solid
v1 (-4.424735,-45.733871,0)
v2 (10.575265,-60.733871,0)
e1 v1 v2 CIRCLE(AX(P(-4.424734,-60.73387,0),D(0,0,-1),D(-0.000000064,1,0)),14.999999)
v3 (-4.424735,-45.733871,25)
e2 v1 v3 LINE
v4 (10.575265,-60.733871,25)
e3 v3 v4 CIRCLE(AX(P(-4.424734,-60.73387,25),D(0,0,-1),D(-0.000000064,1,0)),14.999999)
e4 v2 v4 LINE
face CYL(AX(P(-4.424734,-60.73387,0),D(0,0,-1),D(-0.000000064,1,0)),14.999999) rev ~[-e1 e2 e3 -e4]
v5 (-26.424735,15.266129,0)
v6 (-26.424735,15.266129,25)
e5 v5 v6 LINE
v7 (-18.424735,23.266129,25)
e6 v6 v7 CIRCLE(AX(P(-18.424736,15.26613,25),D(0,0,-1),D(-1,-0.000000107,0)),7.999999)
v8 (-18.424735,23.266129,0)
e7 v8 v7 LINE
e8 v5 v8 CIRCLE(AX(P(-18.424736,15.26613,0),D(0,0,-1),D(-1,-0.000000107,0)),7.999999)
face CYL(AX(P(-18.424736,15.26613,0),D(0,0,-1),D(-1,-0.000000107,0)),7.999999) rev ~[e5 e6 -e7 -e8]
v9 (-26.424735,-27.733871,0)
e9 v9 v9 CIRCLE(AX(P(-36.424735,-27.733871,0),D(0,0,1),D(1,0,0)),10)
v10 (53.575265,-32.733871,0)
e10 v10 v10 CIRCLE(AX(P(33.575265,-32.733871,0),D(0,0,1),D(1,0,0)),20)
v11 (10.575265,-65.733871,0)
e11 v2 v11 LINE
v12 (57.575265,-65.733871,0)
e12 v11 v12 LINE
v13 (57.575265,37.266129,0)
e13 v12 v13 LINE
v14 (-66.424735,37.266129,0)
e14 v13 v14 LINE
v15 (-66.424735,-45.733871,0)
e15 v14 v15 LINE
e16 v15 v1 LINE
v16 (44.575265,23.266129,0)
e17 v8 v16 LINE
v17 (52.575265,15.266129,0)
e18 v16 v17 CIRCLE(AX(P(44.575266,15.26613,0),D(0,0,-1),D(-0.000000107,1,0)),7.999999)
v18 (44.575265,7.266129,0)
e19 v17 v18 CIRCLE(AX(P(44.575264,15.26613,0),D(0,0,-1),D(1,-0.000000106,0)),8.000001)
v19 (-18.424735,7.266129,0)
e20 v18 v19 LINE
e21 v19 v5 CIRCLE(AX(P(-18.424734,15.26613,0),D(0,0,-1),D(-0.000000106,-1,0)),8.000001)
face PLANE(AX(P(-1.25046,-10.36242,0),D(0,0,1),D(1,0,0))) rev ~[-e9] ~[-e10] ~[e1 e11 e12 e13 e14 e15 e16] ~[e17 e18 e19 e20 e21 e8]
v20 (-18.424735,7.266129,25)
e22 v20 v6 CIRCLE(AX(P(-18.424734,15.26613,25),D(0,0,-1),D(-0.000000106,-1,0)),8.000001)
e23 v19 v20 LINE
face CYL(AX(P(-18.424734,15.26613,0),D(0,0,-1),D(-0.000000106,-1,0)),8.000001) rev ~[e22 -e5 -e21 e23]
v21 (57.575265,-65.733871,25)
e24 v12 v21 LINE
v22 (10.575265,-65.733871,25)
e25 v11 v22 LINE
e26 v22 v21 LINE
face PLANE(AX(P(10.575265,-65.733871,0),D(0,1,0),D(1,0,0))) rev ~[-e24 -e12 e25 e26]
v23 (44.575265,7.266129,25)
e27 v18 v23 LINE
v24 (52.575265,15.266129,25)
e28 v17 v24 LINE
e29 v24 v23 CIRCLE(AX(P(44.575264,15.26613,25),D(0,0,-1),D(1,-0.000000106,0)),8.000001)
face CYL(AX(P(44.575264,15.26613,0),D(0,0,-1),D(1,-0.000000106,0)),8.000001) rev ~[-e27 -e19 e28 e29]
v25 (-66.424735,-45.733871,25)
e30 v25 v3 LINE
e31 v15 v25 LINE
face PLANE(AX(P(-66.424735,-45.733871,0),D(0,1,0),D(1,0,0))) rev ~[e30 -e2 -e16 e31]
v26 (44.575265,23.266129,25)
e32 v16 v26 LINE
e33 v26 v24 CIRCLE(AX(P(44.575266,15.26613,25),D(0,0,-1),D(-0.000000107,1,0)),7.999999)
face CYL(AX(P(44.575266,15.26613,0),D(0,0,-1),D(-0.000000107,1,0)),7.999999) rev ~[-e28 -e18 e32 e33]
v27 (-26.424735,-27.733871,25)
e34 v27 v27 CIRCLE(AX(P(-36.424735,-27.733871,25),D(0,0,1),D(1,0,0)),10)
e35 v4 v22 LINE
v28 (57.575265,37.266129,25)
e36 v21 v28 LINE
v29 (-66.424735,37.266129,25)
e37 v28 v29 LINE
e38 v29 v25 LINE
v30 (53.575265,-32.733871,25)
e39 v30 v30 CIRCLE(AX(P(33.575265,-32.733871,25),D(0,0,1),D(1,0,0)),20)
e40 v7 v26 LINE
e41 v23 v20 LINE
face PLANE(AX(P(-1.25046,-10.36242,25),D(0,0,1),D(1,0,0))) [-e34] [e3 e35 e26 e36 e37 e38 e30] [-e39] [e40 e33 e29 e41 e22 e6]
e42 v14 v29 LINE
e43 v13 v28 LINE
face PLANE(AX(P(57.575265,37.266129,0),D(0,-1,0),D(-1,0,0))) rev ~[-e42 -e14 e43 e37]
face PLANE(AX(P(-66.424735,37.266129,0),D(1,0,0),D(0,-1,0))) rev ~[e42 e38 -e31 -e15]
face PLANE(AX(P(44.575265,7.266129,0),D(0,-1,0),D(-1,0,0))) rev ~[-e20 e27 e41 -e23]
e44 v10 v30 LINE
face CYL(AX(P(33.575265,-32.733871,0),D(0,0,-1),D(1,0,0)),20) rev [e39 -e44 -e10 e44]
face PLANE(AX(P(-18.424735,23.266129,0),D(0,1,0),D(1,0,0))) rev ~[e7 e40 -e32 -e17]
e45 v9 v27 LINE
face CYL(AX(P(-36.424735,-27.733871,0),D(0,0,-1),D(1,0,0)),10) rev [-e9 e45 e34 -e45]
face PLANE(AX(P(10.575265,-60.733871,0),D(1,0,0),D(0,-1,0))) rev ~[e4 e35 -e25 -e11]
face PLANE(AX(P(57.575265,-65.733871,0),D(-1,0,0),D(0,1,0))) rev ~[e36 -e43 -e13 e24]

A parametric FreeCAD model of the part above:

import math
import FreeCAD as App
import Part
import Sketcher
Q = App.Units.Quantity

doc = App.newDocument("Part")
body = doc.addObject("PartDesign::Body", "Body")

# Sketch on XY plane
sketch1 = doc.addObject("Sketcher::SketchObject", "Sketch")
body.addObject(sketch1)
sketch1.AttachmentSupport = (doc.XY_Plane, [""])
sketch1.MapMode = "FlatFace"
sketch1.addGeometry([
    Part.LineSegment(App.Vector(57.6, 37.3, 0), App.Vector(-66.4, 37.3, 0)),  # 0
    Part.LineSegment(App.Vector(-66.4, 37.3, 0), App.Vector(-66.4, -45.7, 0)),  # 1
    Part.LineSegment(App.Vector(-66.4, -45.7, 0), App.Vector(-4.4, -45.7, 0)),  # 2
    Part.ArcOfCircle(Part.Circle(App.Vector(-4.4, -60.7, 0), App.Vector(0, 0, 1), 15), math.radians(0), math.radians(90)),  # 3
    Part.LineSegment(App.Vector(10.6, -60.7, 0), App.Vector(10.6, -65.7, 0)),  # 4
    Part.LineSegment(App.Vector(10.6, -65.7, 0), App.Vector(57.6, -65.7, 0)),  # 5
    Part.LineSegment(App.Vector(57.6, -65.7, 0), App.Vector(57.6, 37.3, 0)),  # 6
    Part.Circle(App.Vector(-36.4, -27.7, 0), App.Vector(0, 0, 1), 10),  # 7
    Part.Circle(App.Vector(33.6, -32.7, 0), App.Vector(0, 0, 1), 20),  # 8
    Part.ArcOfCircle(Part.Circle(App.Vector(-18.4, 15.3, 0), App.Vector(0, 0, 1), 8), math.radians(90), math.radians(180)),  # 9
    Part.LineSegment(App.Vector(-18.4, 23.3, 0), App.Vector(44.6, 23.3, 0)),  # 10
    Part.ArcOfCircle(Part.Circle(App.Vector(44.6, 15.3, 0), App.Vector(0, 0, 1), 8), math.radians(0), math.radians(90)),  # 11
    Part.ArcOfCircle(Part.Circle(App.Vector(44.6, 15.3, 0), App.Vector(0, 0, 1), 8), math.radians(-90), math.radians(0)),  # 12
    Part.LineSegment(App.Vector(44.6, 7.3, 0), App.Vector(-18.4, 7.3, 0)),  # 13
    Part.ArcOfCircle(Part.Circle(App.Vector(-18.4, 15.3, 0), App.Vector(0, 0, 1), 8), math.radians(-180), math.radians(-90)),  # 14
], False)
sketch1.addConstraint([
    Sketcher.Constraint("Coincident", 0, 2, 1, 1),
    Sketcher.Constraint("Coincident", 1, 2, 2, 1),
    Sketcher.Constraint("Tangent", 2, 2, 3, 2),
    Sketcher.Constraint("Tangent", 3, 1, 4, 1),
    Sketcher.Constraint("Coincident", 4, 2, 5, 1),
    Sketcher.Constraint("Coincident", 5, 2, 6, 1),
    Sketcher.Constraint("Coincident", 6, 2, 0, 1),
    Sketcher.Constraint("Tangent", 9, 1, 10, 1),
    Sketcher.Constraint("Tangent", 10, 2, 11, 2),
    Sketcher.Constraint("Tangent", 11, 1, 12, 2),
    Sketcher.Constraint("Tangent", 12, 1, 13, 1),
    Sketcher.Constraint("Tangent", 13, 2, 14, 2),
    Sketcher.Constraint("Tangent", 14, 1, 9, 2),
    Sketcher.Constraint("Horizontal", 0),
    Sketcher.Constraint("Vertical", 1),
    Sketcher.Constraint("Horizontal", 2),
    Sketcher.Constraint("Vertical", 4),
    Sketcher.Constraint("Horizontal", 5),
    Sketcher.Constraint("Vertical", 6),
    Sketcher.Constraint("Horizontal", 10),
    Sketcher.Constraint("Horizontal", 13),
    Sketcher.Constraint("Equal", 9, 11),
    Sketcher.Constraint("Equal", 11, 12),
    Sketcher.Constraint("Horizontal", 14, 3, 11, 1),
    Sketcher.Constraint("Horizontal", 11, 1, 14, 1),
    Sketcher.Constraint("Diameter", 7, Q("20 mm")),
    Sketcher.Constraint("Diameter", 8, Q("40 mm")),
    Sketcher.Constraint("Radius", 3, Q("14.999999 mm")),
    Sketcher.Constraint("Radius", 9, Q("7.999999 mm")),
    Sketcher.Constraint("DistanceX", 0, 2, 0, 1, Q("124 mm")),
    Sketcher.Constraint("DistanceX", 2, 1, 2, 2, Q("62 mm")),
    Sketcher.Constraint("DistanceX", 10, 1, 10, 2, Q("63 mm")),
    Sketcher.Constraint("DistanceY", 1, 2, 1, 1, Q("83 mm")),
    Sketcher.Constraint("DistanceY", 4, 2, 4, 1, Q("5 mm")),
    Sketcher.Constraint("DistanceX", 7, 3, 3, 3, Q("32.000001 mm")),
    Sketcher.Constraint("DistanceY", 3, 3, 7, 3, Q("32.999999 mm")),
    Sketcher.Constraint("DistanceX", 3, 3, 8, 3, Q("37.999999 mm")),
    Sketcher.Constraint("DistanceY", 3, 3, 8, 3, Q("27.999999 mm")),
    Sketcher.Constraint("DistanceX", 7, 3, 9, 3, Q("17.999999 mm")),
    Sketcher.Constraint("DistanceY", 7, 3, 9, 3, Q("43.000001 mm")),
    Sketcher.Constraint("DistanceY", 3, 3, -1, 1, Q("60.73387 mm")),
    Sketcher.Constraint("DistanceX", 3, 3, -1, 1, Q("4.424734 mm")),
])
pad1 = doc.addObject("PartDesign::Pad", "Pad")
body.addObject(pad1)
pad1.Profile = sketch1
pad1.Length = 25

doc.recompute()
